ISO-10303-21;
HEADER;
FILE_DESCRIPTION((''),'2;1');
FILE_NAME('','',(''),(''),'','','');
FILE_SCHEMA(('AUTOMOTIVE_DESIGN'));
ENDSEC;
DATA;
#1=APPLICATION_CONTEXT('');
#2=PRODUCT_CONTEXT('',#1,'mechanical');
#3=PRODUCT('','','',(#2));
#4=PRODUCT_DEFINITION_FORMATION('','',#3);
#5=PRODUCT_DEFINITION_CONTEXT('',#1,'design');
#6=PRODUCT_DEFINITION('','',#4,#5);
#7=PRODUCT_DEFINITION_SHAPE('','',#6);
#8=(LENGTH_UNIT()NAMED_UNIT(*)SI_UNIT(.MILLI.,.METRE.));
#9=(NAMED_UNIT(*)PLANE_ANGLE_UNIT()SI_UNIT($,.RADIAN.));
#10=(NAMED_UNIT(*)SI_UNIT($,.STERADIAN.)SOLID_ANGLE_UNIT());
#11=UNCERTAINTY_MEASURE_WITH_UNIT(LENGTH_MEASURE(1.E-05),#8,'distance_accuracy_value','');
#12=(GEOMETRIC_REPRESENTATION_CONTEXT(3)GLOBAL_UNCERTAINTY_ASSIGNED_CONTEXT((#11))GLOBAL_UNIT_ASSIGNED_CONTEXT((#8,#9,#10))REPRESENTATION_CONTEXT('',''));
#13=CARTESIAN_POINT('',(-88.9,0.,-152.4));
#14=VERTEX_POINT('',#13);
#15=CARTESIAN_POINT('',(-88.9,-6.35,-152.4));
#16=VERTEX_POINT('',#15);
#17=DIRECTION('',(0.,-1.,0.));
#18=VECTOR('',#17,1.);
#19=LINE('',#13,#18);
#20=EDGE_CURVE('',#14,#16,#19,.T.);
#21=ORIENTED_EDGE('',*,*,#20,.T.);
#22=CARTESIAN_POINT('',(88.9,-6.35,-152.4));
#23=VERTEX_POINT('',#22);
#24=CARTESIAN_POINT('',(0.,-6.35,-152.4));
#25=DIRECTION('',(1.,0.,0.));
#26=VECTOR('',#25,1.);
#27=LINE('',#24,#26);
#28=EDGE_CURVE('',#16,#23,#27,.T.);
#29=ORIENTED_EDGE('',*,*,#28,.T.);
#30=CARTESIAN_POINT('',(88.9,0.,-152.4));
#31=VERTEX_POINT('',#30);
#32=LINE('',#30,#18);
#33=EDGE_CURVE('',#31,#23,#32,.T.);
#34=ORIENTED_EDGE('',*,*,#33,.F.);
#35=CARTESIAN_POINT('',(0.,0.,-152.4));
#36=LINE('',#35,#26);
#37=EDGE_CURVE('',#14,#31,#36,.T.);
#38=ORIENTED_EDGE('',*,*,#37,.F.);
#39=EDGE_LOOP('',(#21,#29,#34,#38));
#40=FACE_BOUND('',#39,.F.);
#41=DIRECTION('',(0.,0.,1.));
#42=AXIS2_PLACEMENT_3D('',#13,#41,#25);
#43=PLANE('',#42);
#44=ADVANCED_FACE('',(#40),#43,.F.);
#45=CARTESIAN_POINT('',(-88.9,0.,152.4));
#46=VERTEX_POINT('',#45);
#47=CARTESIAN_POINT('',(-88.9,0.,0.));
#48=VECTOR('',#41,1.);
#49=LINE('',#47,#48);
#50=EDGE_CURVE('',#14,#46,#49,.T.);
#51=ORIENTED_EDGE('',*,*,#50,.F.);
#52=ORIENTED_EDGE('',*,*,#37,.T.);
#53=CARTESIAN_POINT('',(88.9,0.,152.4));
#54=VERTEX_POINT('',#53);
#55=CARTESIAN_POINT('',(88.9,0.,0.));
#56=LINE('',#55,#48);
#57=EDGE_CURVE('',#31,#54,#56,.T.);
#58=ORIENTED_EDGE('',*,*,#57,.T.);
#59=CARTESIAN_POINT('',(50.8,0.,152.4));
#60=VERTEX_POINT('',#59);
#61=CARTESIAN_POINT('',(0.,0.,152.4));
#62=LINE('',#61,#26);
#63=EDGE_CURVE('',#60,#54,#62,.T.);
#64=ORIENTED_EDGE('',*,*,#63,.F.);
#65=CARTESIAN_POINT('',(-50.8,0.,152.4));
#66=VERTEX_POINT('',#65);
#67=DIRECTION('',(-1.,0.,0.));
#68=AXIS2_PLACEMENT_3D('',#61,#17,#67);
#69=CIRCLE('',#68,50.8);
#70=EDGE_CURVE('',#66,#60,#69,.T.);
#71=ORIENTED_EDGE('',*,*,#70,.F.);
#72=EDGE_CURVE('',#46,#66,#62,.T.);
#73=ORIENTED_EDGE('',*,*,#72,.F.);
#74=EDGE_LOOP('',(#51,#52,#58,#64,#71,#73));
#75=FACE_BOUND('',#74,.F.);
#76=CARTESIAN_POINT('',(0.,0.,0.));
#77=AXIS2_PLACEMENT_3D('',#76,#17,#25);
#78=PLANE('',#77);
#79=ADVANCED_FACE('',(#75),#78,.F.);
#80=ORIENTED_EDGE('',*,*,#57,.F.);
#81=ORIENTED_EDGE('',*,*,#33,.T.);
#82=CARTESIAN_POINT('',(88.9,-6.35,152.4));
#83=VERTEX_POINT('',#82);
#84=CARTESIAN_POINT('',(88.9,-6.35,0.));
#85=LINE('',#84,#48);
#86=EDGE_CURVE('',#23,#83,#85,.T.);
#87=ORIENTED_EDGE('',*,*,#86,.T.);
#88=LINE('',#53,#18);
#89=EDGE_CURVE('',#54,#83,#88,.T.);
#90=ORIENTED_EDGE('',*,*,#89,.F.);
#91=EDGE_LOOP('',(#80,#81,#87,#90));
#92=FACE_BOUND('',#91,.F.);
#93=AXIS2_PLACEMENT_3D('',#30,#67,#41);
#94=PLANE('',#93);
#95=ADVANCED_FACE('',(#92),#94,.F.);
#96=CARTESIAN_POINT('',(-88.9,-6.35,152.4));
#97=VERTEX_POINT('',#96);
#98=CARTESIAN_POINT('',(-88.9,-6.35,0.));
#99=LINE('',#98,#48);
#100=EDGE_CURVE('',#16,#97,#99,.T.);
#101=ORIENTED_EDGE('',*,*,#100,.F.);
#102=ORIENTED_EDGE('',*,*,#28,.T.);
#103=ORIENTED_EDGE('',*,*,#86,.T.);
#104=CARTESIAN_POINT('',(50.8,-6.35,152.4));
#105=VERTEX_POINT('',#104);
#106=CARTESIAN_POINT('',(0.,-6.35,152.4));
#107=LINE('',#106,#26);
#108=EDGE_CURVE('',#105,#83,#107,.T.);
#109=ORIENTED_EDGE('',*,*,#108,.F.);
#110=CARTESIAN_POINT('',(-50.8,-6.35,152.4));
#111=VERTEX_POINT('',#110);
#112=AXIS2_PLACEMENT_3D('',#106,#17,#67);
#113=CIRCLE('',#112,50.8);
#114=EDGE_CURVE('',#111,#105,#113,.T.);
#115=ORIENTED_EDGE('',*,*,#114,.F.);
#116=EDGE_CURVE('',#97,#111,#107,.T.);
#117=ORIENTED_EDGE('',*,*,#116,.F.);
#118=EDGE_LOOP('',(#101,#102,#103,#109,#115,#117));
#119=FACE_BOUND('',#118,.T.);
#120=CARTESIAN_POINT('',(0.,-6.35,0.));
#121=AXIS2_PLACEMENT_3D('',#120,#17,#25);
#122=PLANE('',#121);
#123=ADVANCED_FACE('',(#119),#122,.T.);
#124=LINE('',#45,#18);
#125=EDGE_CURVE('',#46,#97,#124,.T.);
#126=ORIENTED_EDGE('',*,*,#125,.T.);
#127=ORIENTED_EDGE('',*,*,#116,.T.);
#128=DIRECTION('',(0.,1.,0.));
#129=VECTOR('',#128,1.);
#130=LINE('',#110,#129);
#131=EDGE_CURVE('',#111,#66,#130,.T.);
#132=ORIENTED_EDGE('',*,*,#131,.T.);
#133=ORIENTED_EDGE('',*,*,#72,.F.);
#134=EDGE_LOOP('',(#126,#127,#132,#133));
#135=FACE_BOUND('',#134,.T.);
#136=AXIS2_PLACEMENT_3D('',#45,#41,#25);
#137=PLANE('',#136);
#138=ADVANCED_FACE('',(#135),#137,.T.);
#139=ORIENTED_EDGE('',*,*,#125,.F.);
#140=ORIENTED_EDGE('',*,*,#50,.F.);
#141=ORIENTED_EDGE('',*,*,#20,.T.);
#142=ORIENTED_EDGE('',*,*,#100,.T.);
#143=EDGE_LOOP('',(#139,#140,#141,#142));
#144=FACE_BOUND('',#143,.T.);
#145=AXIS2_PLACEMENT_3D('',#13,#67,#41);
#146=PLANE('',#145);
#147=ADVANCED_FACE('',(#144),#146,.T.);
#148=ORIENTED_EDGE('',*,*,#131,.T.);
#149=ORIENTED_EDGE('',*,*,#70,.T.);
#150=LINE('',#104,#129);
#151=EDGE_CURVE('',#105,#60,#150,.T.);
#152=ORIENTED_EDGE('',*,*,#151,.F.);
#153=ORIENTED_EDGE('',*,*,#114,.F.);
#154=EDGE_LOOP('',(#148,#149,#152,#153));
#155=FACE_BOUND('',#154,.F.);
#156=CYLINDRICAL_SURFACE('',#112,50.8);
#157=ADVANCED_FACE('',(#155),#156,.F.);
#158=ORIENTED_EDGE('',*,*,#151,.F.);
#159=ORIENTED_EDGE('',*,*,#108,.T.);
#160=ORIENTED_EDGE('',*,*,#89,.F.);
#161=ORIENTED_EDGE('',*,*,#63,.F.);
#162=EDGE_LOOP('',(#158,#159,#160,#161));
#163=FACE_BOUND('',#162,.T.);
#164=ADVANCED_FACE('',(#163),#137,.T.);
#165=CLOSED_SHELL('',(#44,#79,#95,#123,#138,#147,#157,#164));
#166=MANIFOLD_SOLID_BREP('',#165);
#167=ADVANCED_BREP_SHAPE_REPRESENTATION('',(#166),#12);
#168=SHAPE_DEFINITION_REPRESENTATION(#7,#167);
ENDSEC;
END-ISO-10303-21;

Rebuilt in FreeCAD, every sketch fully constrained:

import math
import FreeCAD as App
import Part
import Sketcher
from FreeCAD import Vector
Q = App.Units.Quantity


def add_polygon(sketch, points):
    """Adds a closed chain of lines whose ends are joined by coincident constraints."""
    first, n = sketch.GeometryCount, len(points)
    for a, b in zip(points, points[1:] + points[:1]):
        sketch.addGeometry(Part.LineSegment(App.Vector(*a, 0), App.Vector(*b, 0)), False)
    for i in range(n):
        sketch.addConstraint(Sketcher.Constraint("Coincident", first + i, 2, first + (i + 1) % n, 1))

doc = App.newDocument("Part")
body = doc.addObject("PartDesign::Body", "Body")

# Sketch on XZ plane
sketch1 = body.newObject("Sketcher::SketchObject", "Sketch")
sketch1.AttachmentSupport = (doc.getObject("XZ_Plane"), [""])
sketch1.MapMode = "FlatFace"
add_polygon(sketch1, [(-88.9, 152.4), (-88.9, -152.4), (88.9, -152.4), (88.9, 152.4)])  # lines 0-3
sketch1.addConstraint([
    Sketcher.Constraint("Vertical", 0),
    Sketcher.Constraint("Horizontal", 1),
    Sketcher.Constraint("Vertical", 2),
    Sketcher.Constraint("Horizontal", 3),
    Sketcher.Constraint("Symmetric", 0, 2, 2, 2, -1, 1),
    Sketcher.Constraint("DistanceX", 1, 1, 1, 2, Q("7 in")),
    Sketcher.Constraint("DistanceY", 0, 2, 0, 1, Q("12 in")),
])
pad1 = body.newObject("PartDesign::Pad", "Pad")
pad1.Profile = sketch1
pad1.Length = Q("0.25 in")

# Sketch on XZ plane
sketch2 = body.newObject("Sketcher::SketchObject", "Sketch001")
sketch2.AttachmentSupport = (doc.getObject("XZ_Plane"), [""])
sketch2.MapMode = "FlatFace"
sketch2.AttachmentOffset = App.Placement(Vector(0, 0, 0.25 * 25.4), App.Rotation())
sketch2.addGeometry([
    Part.LineSegment(Vector(50.8, 152.4, 0), Vector(-50.8, 152.4, 0)),
    Part.ArcOfCircle(Part.Circle(Vector(0, 152.4, 0), Vector(0, 0, 1), 50.8), math.radians(180), math.radians(360)),
], False)
sketch2.addConstraint([
    Sketcher.Constraint("Coincident", 0, 1, 1, 2),
    Sketcher.Constraint("Coincident", 1, 1, 0, 2),
    Sketcher.Constraint("Horizontal", 0),
    Sketcher.Constraint("PointOnObject", 1, 3, -2),
    Sketcher.Constraint("Horizontal", 1, 3, 0, 1),
    Sketcher.Constraint("Radius", 1, Q("2 in")),
    Sketcher.Constraint("DistanceY", -1, 1, 1, 3, Q("6 in")),
])
pocket1 = body.newObject("PartDesign::Pocket", "Pocket")
pocket1.Profile = sketch2
pocket1.Length = Q("1 in")

doc.recompute()
